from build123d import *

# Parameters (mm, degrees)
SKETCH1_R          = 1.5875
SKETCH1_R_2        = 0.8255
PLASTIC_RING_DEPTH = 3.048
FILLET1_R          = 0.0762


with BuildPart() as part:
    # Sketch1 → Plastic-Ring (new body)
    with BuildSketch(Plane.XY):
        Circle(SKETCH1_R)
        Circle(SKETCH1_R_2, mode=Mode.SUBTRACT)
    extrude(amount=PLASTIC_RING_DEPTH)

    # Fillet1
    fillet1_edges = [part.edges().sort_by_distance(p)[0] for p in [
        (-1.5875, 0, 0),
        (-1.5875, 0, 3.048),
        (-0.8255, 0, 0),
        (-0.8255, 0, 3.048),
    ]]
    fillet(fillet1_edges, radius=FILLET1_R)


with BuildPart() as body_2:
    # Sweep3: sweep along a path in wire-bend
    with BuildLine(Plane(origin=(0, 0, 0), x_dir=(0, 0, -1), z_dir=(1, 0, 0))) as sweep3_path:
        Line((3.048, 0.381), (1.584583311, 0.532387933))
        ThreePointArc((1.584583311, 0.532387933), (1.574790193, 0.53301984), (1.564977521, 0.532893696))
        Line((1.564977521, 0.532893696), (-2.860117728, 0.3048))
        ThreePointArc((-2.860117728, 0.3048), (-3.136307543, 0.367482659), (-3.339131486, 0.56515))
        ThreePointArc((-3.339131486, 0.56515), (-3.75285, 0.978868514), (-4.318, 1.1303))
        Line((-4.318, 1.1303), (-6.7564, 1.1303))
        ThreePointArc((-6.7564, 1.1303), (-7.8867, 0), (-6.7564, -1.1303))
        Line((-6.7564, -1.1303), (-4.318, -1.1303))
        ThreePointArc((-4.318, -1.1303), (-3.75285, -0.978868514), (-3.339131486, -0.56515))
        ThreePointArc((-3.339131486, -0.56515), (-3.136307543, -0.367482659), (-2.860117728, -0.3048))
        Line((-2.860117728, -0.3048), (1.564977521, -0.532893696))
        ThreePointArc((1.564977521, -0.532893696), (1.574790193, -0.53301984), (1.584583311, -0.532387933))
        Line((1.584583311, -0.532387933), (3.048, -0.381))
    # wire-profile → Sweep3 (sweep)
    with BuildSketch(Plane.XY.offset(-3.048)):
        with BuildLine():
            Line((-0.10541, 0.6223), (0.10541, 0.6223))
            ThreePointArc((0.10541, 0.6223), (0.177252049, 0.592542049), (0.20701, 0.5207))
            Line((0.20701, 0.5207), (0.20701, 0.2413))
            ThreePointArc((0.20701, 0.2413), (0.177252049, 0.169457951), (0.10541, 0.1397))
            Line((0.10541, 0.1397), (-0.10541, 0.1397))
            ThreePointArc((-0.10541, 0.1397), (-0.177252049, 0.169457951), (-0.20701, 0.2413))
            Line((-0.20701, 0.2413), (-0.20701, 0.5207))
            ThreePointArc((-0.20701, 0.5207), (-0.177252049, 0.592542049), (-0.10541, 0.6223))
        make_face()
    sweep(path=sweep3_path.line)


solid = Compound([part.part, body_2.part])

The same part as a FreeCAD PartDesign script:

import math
import FreeCAD as App
import Part
import Sketcher
from FreeCAD import Vector
Q = App.Units.Quantity


def edges_at(feature, points):
    """Names of the edges that pass closest to the given points."""
    edges = feature.Shape.Edges
    near = lambda p: min(range(len(edges)), key=lambda i: edges[i].distToShape(Part.Vertex(*p))[0])
    return sorted({f"Edge{near(p) + 1}" for p in points})

doc = App.newDocument("Part")
body = doc.addObject("PartDesign::Body", "Body")

# Sketch on XY plane
sketch1 = body.newObject("Sketcher::SketchObject", "Sketch")
sketch1.AttachmentSupport = (doc.getObject("XY_Plane"), [""])
sketch1.MapMode = "FlatFace"
sketch1.addGeometry(Part.Circle(Vector(0, 0, 0), Vector(0, 0, 1), 1.5875), False)
sketch1.addGeometry(Part.Circle(Vector(0, 0, 0), Vector(0, 0, 1), 0.8255), False)
sketch1.addConstraint(Sketcher.Constraint("Coincident", 0, 3, -1, 1))
sketch1.addConstraint(Sketcher.Constraint("Coincident", 1, 3, -1, 1))
sketch1.addConstraint(Sketcher.Constraint("Diameter", 0, Q("0.125 in")))
sketch1.addConstraint(Sketcher.Constraint("Diameter", 1, Q("0.065 in")))
pad1 = body.newObject("PartDesign::Pad", "Pad")
pad1.Profile = sketch1
pad1.Length = Q("0.12 in")
doc.recompute()

fillet = body.newObject("PartDesign::Fillet", "Fillet")
fillet.Base = (pad1, edges_at(pad1, [
    (-1.587, 0, 0),
    (-1.587, 0, 3.048),
    (-0.826, 0, 0),
    (-0.826, 0, 3.048),
]))
fillet.Radius = Q("0.003 in")
body2 = doc.addObject("PartDesign::Body", "Body001")

# Sketch on XY plane
sketch2 = body2.newObject("Sketcher::SketchObject", "Sketch001")
sketch2.AttachmentSupport = (doc.getObject("XY_Plane001"), [""])
sketch2.MapMode = "FlatFace"
sketch2.AttachmentOffset = App.Placement(Vector(0, 0, -0.12 * 25.4), App.Rotation())
sketch2.addGeometry(Part.LineSegment(Vector(0.10541, 0.6223, 0), Vector(-0.10541, 0.6223, 0)), False)
sketch2.addGeometry(Part.ArcOfCircle(Part.Circle(Vector(-0.10541, 0.5207, 0), Vector(0, 0, 1), 0.1016), math.radians(90), math.radians(180)), False)
sketch2.addGeometry(Part.LineSegment(Vector(-0.20701, 0.5207, 0), Vector(-0.20701, 0.2413, 0)), False)
sketch2.addGeometry(Part.ArcOfCircle(Part.Circle(Vector(-0.10541, 0.2413, 0), Vector(0, 0, 1), 0.1016), math.radians(180), math.radians(270)), False)
sketch2.addGeometry(Part.LineSegment(Vector(-0.10541, 0.1397, 0), Vector(0.10541, 0.1397, 0)), False)
sketch2.addGeometry(Part.ArcOfCircle(Part.Circle(Vector(0.10541, 0.2413, 0), Vector(0, 0, 1), 0.1016), math.radians(-90), math.radians(0)), False)
sketch2.addGeometry(Part.LineSegment(Vector(0.20701, 0.2413, 0), Vector(0.20701, 0.5207, 0)), False)
sketch2.addGeometry(Part.ArcOfCircle(Part.Circle(Vector(0.10541, 0.5207, 0), Vector(0, 0, 1), 0.1016), math.radians(0), math.radians(90)), False)
sketch2.addConstraint(Sketcher.Constraint("Tangent", 0, 2, 1, 1))
sketch2.addConstraint(Sketcher.Constraint("Tangent", 1, 2, 2, 1))
sketch2.addConstraint(Sketcher.Constraint("Tangent", 2, 2, 3, 1))
sketch2.addConstraint(Sketcher.Constraint("Tangent", 3, 2, 4, 1))
sketch2.addConstraint(Sketcher.Constraint("Tangent", 4, 2, 5, 1))
sketch2.addConstraint(Sketcher.Constraint("Tangent", 5, 2, 6, 1))
sketch2.addConstraint(Sketcher.Constraint("Tangent", 6, 2, 7, 1))
sketch2.addConstraint(Sketcher.Constraint("Tangent", 7, 2, 0, 1))
sketch2.addConstraint(Sketcher.Constraint("Horizontal", 0))
sketch2.addConstraint(Sketcher.Constraint("Vertical", 2))
sketch2.addConstraint(Sketcher.Constraint("Horizontal", 4))
sketch2.addConstraint(Sketcher.Constraint("Vertical", 6))
sketch2.addConstraint(Sketcher.Constraint("Equal", 1, 3))
sketch2.addConstraint(Sketcher.Constraint("Equal", 3, 5))
sketch2.addConstraint(Sketcher.Constraint("Equal", 5, 7))
sketch2.addConstraint(Sketcher.Constraint("Radius", 1, Q("0.004 in")))
sketch2.addConstraint(Sketcher.Constraint("DistanceY", 2, 2, 2, 1, Q("0.011 in")))
sketch2.addConstraint(Sketcher.Constraint("DistanceX", 0, 2, 0, 1, Q("0.0083 in")))
sketch2.addConstraint(Sketcher.Constraint("DistanceY", -1, 1, 1, 3, Q("0.0205 in")))
sketch2.addConstraint(Sketcher.Constraint("DistanceX", 1, 3, -1, 1, Q("0.10541 mm")))

# Sketch on YZ plane
sketch3 = body2.newObject("Sketcher::SketchObject", "Sketch002")
sketch3.AttachmentSupport = (doc.getObject("YZ_Plane001"), [""])
sketch3.MapMode = "FlatFace"
sketch3.addGeometry(Part.LineSegment(Vector(0.381, -3.048, 0), Vector(0.532388, -1.584583, 0)), False)
sketch3.addGeometry(Part.ArcOfCircle(Part.Circle(Vector(0.406062, -1.571515, 0), Vector(0, 0, 1), 0.127), math.radians(-5.906146), math.radians(2.950727)), False)
sketch3.addGeometry(Part.LineSegment(Vector(0.532894, -1.564978, 0), Vector(0.3048, 2.860118, 0)), False)
sketch3.addGeometry(Part.ArcOfCircle(Part.Circle(Vector(0.826192, 2.886993, 0), Vector(0, 0, 1), 0.522084), math.radians(120), math.radians(182.950727)), False)
sketch3.addGeometry(Part.ArcOfCircle(Part.Circle(Vector(0, 4.318, 0), Vector(0, 0, 1), 1.1303), math.radians(-60), math.radians(0)), False)
sketch3.addGeometry(Part.LineSegment(Vector(1.1303, 4.318, 0), Vector(1.1303, 6.7564, 0)), False)
sketch3.addGeometry(Part.ArcOfCircle(Part.Circle(Vector(0, 6.7564, 0), Vector(0, 0, 1), 1.1303), math.radians(0), math.radians(180)), False)
sketch3.addGeometry(Part.LineSegment(Vector(-1.1303, 6.7564, 0), Vector(-1.1303, 4.318, 0)), False)
sketch3.addGeometry(Part.ArcOfCircle(Part.Circle(Vector(0, 4.318, 0), Vector(0, 0, 1), 1.1303), math.radians(180), math.radians(240)), False)
sketch3.addGeometry(Part.ArcOfCircle(Part.Circle(Vector(-0.826192, 2.886993, 0), Vector(0, 0, 1), 0.522084), math.radians(-2.950727), math.radians(60)), False)
sketch3.addGeometry(Part.LineSegment(Vector(-0.3048, 2.860118, 0), Vector(-0.532894, -1.564978, 0)), False)
sketch3.addGeometry(Part.ArcOfCircle(Part.Circle(Vector(-0.406062, -1.571515, 0), Vector(0, 0, 1), 0.127), math.radians(177.049273), math.radians(185.906146)), False)
sketch3.addGeometry(Part.LineSegment(Vector(-0.532388, -1.584583, 0), Vector(-0.381, -3.048, 0)), False)
sketch3.addConstraint(Sketcher.Constraint("Tangent", 0, 2, 1, 1))
sketch3.addConstraint(Sketcher.Constraint("Tangent", 1, 2, 2, 1))
sketch3.addConstraint(Sketcher.Constraint("Tangent", 2, 2, 3, 2))
sketch3.addConstraint(Sketcher.Constraint("Tangent", 3, 1, 4, 1))
sketch3.addConstraint(Sketcher.Constraint("Tangent", 4, 2, 5, 1))
sketch3.addConstraint(Sketcher.Constraint("Tangent", 5, 2, 6, 1))
sketch3.addConstraint(Sketcher.Constraint("Tangent", 6, 2, 7, 1))
sketch3.addConstraint(Sketcher.Constraint("Tangent", 7, 2, 8, 1))
sketch3.addConstraint(Sketcher.Constraint("Tangent", 8, 2, 9, 2))
sketch3.addConstraint(Sketcher.Constraint("Tangent", 9, 1, 10, 1))
sketch3.addConstraint(Sketcher.Constraint("Tangent", 10, 2, 11, 1))
sketch3.addConstraint(Sketcher.Constraint("Tangent", 11, 2, 12, 1))
sketch3.addConstraint(Sketcher.Constraint("Vertical", 5))
sketch3.addConstraint(Sketcher.Constraint("Vertical", 7))
sketch3.addConstraint(Sketcher.Constraint("Coincident", 8, 3, 4, 3))
sketch3.addConstraint(Sketcher.Constraint("Equal", 4, 6))
sketch3.addConstraint(Sketcher.Constraint("Equal", 3, 9))
sketch3.addConstraint(Sketcher.Constraint("Equal", 1, 11))
sketch3.addConstraint(Sketcher.Constraint("Symmetric", 3, 3, 9, 3, -2))
sketch3.addConstraint(Sketcher.Constraint("Symmetric", 1, 3, 11, 3, -2))
sketch3.addConstraint(Sketcher.Constraint("Symmetric", 0, 1, 12, 2, -2))
sketch3.addConstraint(Sketcher.Constraint("Radius", 1, Q("0.005 in")))
sketch3.addConstraint(Sketcher.Constraint("Radius", 4, Q("0.0445 in")))
sketch3.addConstraint(Sketcher.Constraint("DistanceY", 5, 1, 5, 2, Q("0.096 in")))
sketch3.addConstraint(Sketcher.Constraint("DistanceY", -1, 1, 4, 3, Q("0.17 in")))
sketch3.addConstraint(Sketcher.Constraint("DistanceY", 0, 1, -1, 1, Q("0.12 in")))
sketch3.addConstraint(Sketcher.Constraint("DistanceX", 12, 2, 0, 1, Q("0.03 in")))
sketch3.addConstraint(Sketcher.Constraint("DistanceX", -1, 1, 2, 2, Q("0.012 in")))
sketch3.addConstraint(Sketcher.Constraint("Radius", 3, Q("0.522084 mm")))
sketch3.addConstraint(Sketcher.Constraint("DistanceX", 1, 2, 3, 3, Q("0.293299 mm")))
sketch3.addConstraint(Sketcher.Constraint("Distance", 2, Q("4.43097 mm")))
doc.recompute()

additivepipe = body2.newObject("PartDesign::AdditivePipe", "AdditivePipe")
additivepipe.Profile = sketch2
additivepipe.Spine = (sketch3, ["Edge1", "Edge2", "Edge3", "Edge4", "Edge5", "Edge6", "Edge7", "Edge8", "Edge9", "Edge10", "Edge11", "Edge12", "Edge13"])

doc.recompute()
